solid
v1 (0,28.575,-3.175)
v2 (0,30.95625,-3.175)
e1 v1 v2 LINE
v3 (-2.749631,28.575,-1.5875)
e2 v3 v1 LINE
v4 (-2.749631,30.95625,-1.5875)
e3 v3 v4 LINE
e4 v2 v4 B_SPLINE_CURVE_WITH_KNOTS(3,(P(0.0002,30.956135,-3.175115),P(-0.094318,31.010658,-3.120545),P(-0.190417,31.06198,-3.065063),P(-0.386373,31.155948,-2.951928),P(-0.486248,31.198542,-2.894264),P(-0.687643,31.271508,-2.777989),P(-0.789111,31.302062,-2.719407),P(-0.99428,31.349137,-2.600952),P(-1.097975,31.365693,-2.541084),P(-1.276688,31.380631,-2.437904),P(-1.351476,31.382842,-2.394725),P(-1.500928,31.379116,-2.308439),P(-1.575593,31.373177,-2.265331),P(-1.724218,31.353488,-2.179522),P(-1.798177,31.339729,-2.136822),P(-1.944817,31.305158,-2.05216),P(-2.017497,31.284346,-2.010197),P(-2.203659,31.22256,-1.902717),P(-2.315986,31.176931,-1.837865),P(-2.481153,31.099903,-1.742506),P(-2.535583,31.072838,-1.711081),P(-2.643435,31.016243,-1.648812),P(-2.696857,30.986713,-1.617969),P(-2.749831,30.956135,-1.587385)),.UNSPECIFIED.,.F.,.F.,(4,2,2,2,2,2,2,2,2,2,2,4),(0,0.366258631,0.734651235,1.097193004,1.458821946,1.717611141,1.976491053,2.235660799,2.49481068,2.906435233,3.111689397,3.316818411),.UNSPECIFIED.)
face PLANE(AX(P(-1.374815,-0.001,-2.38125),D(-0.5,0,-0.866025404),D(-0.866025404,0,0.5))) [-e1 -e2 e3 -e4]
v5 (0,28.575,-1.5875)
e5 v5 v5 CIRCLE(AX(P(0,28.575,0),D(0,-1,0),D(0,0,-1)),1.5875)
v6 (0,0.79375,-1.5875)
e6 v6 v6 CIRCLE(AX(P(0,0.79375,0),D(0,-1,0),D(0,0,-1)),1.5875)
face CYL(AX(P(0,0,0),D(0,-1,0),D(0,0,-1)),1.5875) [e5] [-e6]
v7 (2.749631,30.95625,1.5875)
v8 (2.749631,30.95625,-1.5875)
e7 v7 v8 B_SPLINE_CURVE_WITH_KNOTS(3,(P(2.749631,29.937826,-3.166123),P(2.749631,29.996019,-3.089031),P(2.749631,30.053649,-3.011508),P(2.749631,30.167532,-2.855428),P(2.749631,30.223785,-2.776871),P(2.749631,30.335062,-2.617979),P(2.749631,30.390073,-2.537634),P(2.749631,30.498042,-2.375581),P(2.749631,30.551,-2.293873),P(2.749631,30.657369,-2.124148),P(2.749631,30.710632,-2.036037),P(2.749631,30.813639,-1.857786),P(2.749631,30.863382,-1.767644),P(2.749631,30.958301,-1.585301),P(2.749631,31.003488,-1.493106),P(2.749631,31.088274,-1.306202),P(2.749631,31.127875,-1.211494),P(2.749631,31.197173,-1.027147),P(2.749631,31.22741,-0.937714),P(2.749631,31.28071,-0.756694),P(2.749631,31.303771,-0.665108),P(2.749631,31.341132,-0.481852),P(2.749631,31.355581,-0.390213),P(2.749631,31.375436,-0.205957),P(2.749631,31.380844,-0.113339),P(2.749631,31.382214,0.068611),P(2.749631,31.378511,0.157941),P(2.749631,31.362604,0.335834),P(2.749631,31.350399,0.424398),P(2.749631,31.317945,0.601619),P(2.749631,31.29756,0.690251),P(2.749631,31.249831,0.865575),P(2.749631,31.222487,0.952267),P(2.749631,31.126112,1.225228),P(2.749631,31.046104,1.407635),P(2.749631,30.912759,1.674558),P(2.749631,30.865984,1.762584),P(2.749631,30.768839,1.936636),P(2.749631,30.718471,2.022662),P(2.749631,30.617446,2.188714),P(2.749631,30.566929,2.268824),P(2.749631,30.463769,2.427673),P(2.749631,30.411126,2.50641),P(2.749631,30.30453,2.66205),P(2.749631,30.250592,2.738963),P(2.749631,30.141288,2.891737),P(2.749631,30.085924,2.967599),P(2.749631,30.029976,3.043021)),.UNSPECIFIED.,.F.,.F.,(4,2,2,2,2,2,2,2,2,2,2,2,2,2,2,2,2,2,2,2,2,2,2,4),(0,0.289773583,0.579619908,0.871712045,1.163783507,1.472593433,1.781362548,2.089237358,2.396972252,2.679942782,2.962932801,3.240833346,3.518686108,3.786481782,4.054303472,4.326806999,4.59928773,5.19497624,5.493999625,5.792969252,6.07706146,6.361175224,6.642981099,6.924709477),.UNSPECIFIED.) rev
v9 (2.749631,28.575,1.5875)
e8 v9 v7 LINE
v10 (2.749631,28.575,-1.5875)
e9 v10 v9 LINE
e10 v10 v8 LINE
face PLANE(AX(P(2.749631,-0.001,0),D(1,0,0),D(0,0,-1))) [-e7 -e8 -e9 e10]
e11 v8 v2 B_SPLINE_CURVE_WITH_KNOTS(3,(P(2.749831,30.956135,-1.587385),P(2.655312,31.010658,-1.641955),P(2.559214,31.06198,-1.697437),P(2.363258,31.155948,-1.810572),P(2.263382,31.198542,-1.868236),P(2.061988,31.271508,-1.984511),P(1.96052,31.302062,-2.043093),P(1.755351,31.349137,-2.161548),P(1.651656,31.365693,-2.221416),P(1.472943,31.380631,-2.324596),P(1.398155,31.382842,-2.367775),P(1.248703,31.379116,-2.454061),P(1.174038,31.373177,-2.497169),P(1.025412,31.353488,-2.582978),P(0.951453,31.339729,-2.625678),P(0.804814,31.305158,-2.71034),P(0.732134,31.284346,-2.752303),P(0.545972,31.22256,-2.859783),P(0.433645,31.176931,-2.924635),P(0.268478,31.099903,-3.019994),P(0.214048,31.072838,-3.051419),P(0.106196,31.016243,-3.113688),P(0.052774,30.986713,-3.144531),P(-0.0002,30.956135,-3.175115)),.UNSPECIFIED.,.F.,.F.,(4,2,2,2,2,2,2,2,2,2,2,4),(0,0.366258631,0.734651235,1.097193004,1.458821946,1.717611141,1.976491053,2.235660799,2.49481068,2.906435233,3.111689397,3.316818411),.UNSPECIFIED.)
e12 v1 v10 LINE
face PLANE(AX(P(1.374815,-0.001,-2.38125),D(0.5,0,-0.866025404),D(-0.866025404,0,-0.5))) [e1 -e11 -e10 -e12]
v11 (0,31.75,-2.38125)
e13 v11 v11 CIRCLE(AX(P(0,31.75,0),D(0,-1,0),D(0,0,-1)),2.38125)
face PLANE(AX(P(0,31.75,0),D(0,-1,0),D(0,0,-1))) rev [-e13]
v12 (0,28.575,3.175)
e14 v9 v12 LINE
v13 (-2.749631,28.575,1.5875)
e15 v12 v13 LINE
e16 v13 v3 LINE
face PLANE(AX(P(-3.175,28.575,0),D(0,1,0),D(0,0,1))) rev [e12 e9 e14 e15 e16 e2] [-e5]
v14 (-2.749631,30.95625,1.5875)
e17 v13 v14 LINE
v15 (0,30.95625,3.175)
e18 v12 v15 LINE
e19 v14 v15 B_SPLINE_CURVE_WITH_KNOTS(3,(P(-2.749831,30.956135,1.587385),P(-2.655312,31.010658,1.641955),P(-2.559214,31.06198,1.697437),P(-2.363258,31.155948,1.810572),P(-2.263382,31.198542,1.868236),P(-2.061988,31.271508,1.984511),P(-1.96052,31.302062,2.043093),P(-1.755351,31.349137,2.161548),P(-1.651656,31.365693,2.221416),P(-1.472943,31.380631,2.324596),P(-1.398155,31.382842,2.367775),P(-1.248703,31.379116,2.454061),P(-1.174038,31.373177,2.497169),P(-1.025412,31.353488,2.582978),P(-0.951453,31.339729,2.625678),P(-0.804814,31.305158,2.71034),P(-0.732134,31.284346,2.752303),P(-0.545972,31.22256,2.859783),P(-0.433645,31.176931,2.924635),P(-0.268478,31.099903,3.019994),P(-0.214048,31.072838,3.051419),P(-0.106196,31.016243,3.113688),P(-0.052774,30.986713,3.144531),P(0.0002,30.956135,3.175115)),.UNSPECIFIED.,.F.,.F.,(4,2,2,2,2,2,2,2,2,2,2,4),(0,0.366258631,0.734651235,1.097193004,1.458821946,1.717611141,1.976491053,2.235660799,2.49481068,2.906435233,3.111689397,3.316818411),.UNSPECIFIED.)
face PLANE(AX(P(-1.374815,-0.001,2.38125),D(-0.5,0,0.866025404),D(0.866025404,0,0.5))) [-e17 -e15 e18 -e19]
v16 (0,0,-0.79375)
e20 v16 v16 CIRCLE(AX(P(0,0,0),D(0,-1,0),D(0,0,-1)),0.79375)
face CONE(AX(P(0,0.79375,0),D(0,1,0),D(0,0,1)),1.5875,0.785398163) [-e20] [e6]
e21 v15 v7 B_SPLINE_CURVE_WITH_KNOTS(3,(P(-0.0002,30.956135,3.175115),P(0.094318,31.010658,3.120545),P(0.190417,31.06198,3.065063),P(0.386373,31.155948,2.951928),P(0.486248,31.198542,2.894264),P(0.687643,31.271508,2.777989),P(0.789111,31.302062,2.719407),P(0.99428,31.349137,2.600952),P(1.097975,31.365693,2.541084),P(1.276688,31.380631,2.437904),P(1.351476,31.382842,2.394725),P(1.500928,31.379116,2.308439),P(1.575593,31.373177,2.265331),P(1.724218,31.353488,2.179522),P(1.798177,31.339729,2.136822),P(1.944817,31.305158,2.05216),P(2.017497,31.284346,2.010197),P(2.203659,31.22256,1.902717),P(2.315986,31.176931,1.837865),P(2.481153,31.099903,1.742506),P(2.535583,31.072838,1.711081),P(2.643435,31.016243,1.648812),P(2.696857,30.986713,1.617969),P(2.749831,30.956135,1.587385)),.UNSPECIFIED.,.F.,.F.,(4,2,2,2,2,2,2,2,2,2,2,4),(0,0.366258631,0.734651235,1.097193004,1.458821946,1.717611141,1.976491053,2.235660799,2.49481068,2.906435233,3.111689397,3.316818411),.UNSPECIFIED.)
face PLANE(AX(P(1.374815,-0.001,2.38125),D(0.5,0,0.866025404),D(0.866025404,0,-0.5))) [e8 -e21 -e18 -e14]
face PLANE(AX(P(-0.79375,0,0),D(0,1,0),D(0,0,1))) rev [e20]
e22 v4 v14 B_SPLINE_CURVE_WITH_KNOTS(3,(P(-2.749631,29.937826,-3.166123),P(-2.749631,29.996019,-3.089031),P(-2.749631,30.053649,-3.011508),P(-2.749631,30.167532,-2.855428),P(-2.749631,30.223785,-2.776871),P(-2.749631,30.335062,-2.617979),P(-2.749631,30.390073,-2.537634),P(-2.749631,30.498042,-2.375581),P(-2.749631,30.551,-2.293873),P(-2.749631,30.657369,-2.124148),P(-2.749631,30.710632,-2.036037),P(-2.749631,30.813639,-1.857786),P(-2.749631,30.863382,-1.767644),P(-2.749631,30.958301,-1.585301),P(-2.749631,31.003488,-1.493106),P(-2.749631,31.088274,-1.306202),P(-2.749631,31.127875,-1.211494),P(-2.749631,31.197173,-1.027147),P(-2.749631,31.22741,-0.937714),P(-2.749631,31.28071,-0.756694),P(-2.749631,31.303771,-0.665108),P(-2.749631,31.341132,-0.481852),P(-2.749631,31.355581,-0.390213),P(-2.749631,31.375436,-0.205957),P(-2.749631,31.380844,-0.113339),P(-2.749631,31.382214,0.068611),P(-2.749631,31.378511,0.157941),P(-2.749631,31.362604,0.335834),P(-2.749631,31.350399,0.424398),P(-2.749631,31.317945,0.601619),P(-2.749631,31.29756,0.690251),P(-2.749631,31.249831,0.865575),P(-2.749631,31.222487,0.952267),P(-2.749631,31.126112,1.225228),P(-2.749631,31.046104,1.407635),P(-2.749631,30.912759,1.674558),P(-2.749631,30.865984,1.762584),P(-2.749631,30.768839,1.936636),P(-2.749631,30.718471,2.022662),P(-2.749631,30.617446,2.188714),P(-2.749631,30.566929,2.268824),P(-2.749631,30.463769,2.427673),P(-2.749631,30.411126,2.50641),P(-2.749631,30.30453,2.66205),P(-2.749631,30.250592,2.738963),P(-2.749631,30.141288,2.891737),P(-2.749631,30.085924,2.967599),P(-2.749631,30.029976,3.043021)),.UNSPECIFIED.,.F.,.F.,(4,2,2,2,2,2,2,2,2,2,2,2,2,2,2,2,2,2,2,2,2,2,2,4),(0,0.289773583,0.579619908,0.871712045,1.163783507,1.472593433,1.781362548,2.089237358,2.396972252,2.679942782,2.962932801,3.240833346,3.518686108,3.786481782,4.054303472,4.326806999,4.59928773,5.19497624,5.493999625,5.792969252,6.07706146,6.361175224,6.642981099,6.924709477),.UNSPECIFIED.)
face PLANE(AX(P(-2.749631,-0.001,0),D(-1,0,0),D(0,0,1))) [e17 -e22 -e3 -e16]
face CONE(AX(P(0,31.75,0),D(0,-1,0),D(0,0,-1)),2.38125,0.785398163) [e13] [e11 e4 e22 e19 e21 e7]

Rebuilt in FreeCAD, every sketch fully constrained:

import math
import FreeCAD as App
import Part
import Sketcher

V = App.Vector
Q = App.Units.Quantity

doc = App.newDocument("Part")
body = doc.addObject("PartDesign::Body", "Body")

sketch1 = body.newObject("Sketcher::SketchObject", "Sketch")
sketch1.AttachmentSupport = (doc.getObject("XY_Plane"), [""])
sketch1.MapMode = "FlatFace"
sketch1.addGeometry([
    Part.LineSegment(V(0, 31.8, 0), V(-2.4, 31.8, 0)),
    Part.LineSegment(V(-2.4, 31.8, 0), V(-3.2, 31, 0)),
    Part.LineSegment(V(-3.2, 31, 0), V(-3.2, 28.6, 0)),
    Part.LineSegment(V(-3.2, 28.6, 0), V(-1.6, 28.6, 0)),
    Part.LineSegment(V(-1.6, 28.6, 0), V(-1.6, 0.8, 0)),
    Part.LineSegment(V(-1.6, 0.8, 0), V(-0.8, 0, 0)),
    Part.LineSegment(V(-0.8, 0, 0), V(0, 0, 0)),
    Part.LineSegment(V(0, 0, 0), V(0, 31.8, 0)),
], False)
sketch1.addConstraint([
    Sketcher.Constraint("Coincident", 0, 2, 1, 1),
    Sketcher.Constraint("Coincident", 1, 2, 2, 1),
    Sketcher.Constraint("Coincident", 2, 2, 3, 1),
    Sketcher.Constraint("Coincident", 3, 2, 4, 1),
    Sketcher.Constraint("Coincident", 4, 2, 5, 1),
    Sketcher.Constraint("Coincident", 5, 2, 6, 1),
    Sketcher.Constraint("Coincident", 6, 2, 7, 1),
    Sketcher.Constraint("Coincident", 7, 2, 0, 1),
    Sketcher.Constraint("Horizontal", 0),
    Sketcher.Constraint("Vertical", 2),
    Sketcher.Constraint("Horizontal", 3),
    Sketcher.Constraint("Vertical", 4),
    Sketcher.Constraint("Horizontal", 6),
    Sketcher.Constraint("Vertical", 7),
    Sketcher.Constraint("Coincident", 6, 2, -1, 1),
    Sketcher.Constraint("Perpendicular", 1, 5),
    Sketcher.Constraint("Equal", 0, 2),
    Sketcher.Constraint("Equal", 1, 5),
    Sketcher.Constraint("Angle", 1, Q("-135 deg")),
    Sketcher.Constraint("DistanceY", 7, 1, 7, 2, Q("1.25 in")),
    Sketcher.Constraint("DistanceX", 0, 2, 0, 1, Q("0.09375 in")),
    Sketcher.Constraint("DistanceX", 3, 1, 3, 2, Q("0.0625 in")),
    Sketcher.Constraint("DistanceY", 4, 2, 4, 1, Q("1.09375 in")),
])
revolution = body.newObject("PartDesign::Revolution", "Revolution")
revolution.Profile = sketch1
revolution.ReferenceAxis = (sketch1, ["V_Axis"])
revolution.Angle = 360

sketch2 = body.newObject("Sketcher::SketchObject", "Sketch001")
sketch2.AttachmentSupport = (doc.getObject("XZ_Plane"), [""])
sketch2.MapMode = "FlatFace"
sketch2.AttachmentOffset = App.Placement(V(0, 0, -1.25 * 25.4), App.Rotation())
sketch2.addGeometry([
    Part.LineSegment(V(-2.7, -1.6, 0), V(0, -3.2, 0)),
    Part.ArcOfCircle(Part.Circle(V(0, 0, 0), V(0, 0, 1), 3.2), math.radians(-150), math.radians(-90)),
], False)
sketch2.addConstraint([
    Sketcher.Constraint("Coincident", 0, 1, 1, 1),
    Sketcher.Constraint("Coincident", 1, 2, 0, 2),
    Sketcher.Constraint("Coincident", 1, 3, -1, 1),
    Sketcher.Constraint("PointOnObject", 1, 2, -2),
    Sketcher.Constraint("Angle", 0, Q("-30 deg")),
    Sketcher.Constraint("Radius", 1, Q("0.125 in")),
])
pocket1 = body.newObject("PartDesign::Pocket", "Pocket")
pocket1.Profile = sketch2
pocket1.Length = Q("0.125 in")
pocket1.Reversed = True

sketch3 = body.newObject("Sketcher::SketchObject", "Sketch002")
sketch3.AttachmentSupport = (doc.getObject("XZ_Plane"), [""])
sketch3.MapMode = "FlatFace"
sketch3.AttachmentOffset = App.Placement(V(0, 0, -1.25 * 25.4), App.Rotation())
sketch3.addGeometry([
    Part.ArcOfCircle(Part.Circle(V(0, 0, 0), V(0, 0, 1), 3.2), math.radians(-90), math.radians(-30)),
    Part.LineSegment(V(0, -3.2, 0), V(2.7, -1.6, 0)),
], False)
sketch3.addConstraint([
    Sketcher.Constraint("Coincident", 0, 1, 1, 1),
    Sketcher.Constraint("Coincident", 1, 2, 0, 2),
    Sketcher.Constraint("Coincident", 0, 3, -1, 1),
    Sketcher.Constraint("PointOnObject", 0, 1, -2),
    Sketcher.Constraint("Angle", 1, Q("30 deg")),
    Sketcher.Constraint("Radius", 0, Q("0.125 in")),
])
pocket2 = body.newObject("PartDesign::Pocket", "Pocket001")
pocket2.Profile = sketch3
pocket2.Length = Q("0.125 in")
pocket2.Reversed = True

sketch4 = body.newObject("Sketcher::SketchObject", "Sketch003")
sketch4.AttachmentSupport = (doc.getObject("XZ_Plane"), [""])
sketch4.MapMode = "FlatFace"
sketch4.AttachmentOffset = App.Placement(V(0, 0, -1.25 * 25.4), App.Rotation())
sketch4.addGeometry([
    Part.ArcOfCircle(Part.Circle(V(0, 0, 0), V(0, 0, 1), 3.2), math.radians(-30), math.radians(0)),
    Part.LineSegment(V(2.7, -1.6, 0), V(2.7, 1.6, 0)),
    Part.ArcOfCircle(Part.Circle(V(0, 0, 0), V(0, 0, 1), 3.2), math.radians(0), math.radians(30)),
], False)
sketch4.addConstraint([
    Sketcher.Constraint("Coincident", 0, 1, 1, 1),
    Sketcher.Constraint("Coincident", 1, 2, 2, 2),
    Sketcher.Constraint("Tangent", 2, 1, 0, 2),
    Sketcher.Constraint("Vertical", 1),
    Sketcher.Constraint("Coincident", 0, 3, -1, 1),
    Sketcher.Constraint("Equal", 0, 2),
    Sketcher.Constraint("PointOnObject", 2, 1, -1),
    Sketcher.Constraint("Radius", 0, Q("0.125 in")),
    Sketcher.Constraint("DistanceY", 1, 1, 1, 2, Q("0.125 in")),
])
pocket3 = body.newObject("PartDesign::Pocket", "Pocket002")
pocket3.Profile = sketch4
pocket3.Length = Q("0.125 in")
pocket3.Reversed = True

sketch5 = body.newObject("Sketcher::SketchObject", "Sketch004")
sketch5.AttachmentSupport = (doc.getObject("XZ_Plane"), [""])
sketch5.MapMode = "FlatFace"
sketch5.AttachmentOffset = App.Placement(V(0, 0, -1.25 * 25.4), App.Rotation())
sketch5.addGeometry([
    Part.ArcOfCircle(Part.Circle(V(0, 0, 0), V(0, 0, 1), 3.2), math.radians(30), math.radians(90)),
    Part.LineSegment(V(2.7, 1.6, 0), V(0, 3.2, 0)),
], False)
sketch5.addConstraint([
    Sketcher.Constraint("Coincident", 0, 1, 1, 1),
    Sketcher.Constraint("Coincident", 1, 2, 0, 2),
    Sketcher.Constraint("Coincident", 0, 3, -1, 1),
    Sketcher.Constraint("PointOnObject", 1, 2, -2),
    Sketcher.Constraint("Angle", 1, Q("150 deg")),
    Sketcher.Constraint("Radius", 0, Q("0.125 in")),
])
pocket4 = body.newObject("PartDesign::Pocket", "Pocket003")
pocket4.Profile = sketch5
pocket4.Length = Q("0.125 in")
pocket4.Reversed = True

sketch6 = body.newObject("Sketcher::SketchObject", "Sketch005")
sketch6.AttachmentSupport = (doc.getObject("XZ_Plane"), [""])
sketch6.MapMode = "FlatFace"
sketch6.AttachmentOffset = App.Placement(V(0, 0, -1.25 * 25.4), App.Rotation())
sketch6.addGeometry([
    Part.LineSegment(V(0, 3.2, 0), V(-2.7, 1.6, 0)),
    Part.ArcOfCircle(Part.Circle(V(0, 0, 0), V(0, 0, 1), 3.2), math.radians(90), math.radians(150)),
], False)
sketch6.addConstraint([
    Sketcher.Constraint("Coincident", 0, 1, 1, 1),
    Sketcher.Constraint("Coincident", 1, 2, 0, 2),
    Sketcher.Constraint("Coincident", 1, 3, -1, 1),
    Sketcher.Constraint("PointOnObject", 0, 1, -2),
    Sketcher.Constraint("Angle", 0, Q("-150 deg")),
    Sketcher.Constraint("Radius", 1, Q("0.125 in")),
])
pocket5 = body.newObject("PartDesign::Pocket", "Pocket004")
pocket5.Profile = sketch6
pocket5.Length = Q("0.125 in")
pocket5.Reversed = True

sketch7 = body.newObject("Sketcher::SketchObject", "Sketch006")
sketch7.AttachmentSupport = (doc.getObject("XZ_Plane"), [""])
sketch7.MapMode = "FlatFace"
sketch7.AttachmentOffset = App.Placement(V(0, 0, -1.25 * 25.4), App.Rotation())
sketch7.addGeometry([
    Part.LineSegment(V(-2.7, 1.6, 0), V(-2.7, -1.6, 0)),
    Part.ArcOfCircle(Part.Circle(V(0, 0, 0), V(0, 0, 1), 3.2), math.radians(150), math.radians(210)),
], False)
sketch7.addConstraint([
    Sketcher.Constraint("Coincident", 0, 1, 1, 1),
    Sketcher.Constraint("Coincident", 1, 2, 0, 2),
    Sketcher.Constraint("Vertical", 0),
    Sketcher.Constraint("Coincident", 1, 3, -1, 1),
    Sketcher.Constraint("Radius", 1, Q("0.125 in")),
    Sketcher.Constraint("DistanceY", 0, 2, 0, 1, Q("0.125 in")),
])
pocket6 = body.newObject("PartDesign::Pocket", "Pocket005")
pocket6.Profile = sketch7
pocket6.Length = Q("0.125 in")
pocket6.Reversed = True

doc.recompute()
